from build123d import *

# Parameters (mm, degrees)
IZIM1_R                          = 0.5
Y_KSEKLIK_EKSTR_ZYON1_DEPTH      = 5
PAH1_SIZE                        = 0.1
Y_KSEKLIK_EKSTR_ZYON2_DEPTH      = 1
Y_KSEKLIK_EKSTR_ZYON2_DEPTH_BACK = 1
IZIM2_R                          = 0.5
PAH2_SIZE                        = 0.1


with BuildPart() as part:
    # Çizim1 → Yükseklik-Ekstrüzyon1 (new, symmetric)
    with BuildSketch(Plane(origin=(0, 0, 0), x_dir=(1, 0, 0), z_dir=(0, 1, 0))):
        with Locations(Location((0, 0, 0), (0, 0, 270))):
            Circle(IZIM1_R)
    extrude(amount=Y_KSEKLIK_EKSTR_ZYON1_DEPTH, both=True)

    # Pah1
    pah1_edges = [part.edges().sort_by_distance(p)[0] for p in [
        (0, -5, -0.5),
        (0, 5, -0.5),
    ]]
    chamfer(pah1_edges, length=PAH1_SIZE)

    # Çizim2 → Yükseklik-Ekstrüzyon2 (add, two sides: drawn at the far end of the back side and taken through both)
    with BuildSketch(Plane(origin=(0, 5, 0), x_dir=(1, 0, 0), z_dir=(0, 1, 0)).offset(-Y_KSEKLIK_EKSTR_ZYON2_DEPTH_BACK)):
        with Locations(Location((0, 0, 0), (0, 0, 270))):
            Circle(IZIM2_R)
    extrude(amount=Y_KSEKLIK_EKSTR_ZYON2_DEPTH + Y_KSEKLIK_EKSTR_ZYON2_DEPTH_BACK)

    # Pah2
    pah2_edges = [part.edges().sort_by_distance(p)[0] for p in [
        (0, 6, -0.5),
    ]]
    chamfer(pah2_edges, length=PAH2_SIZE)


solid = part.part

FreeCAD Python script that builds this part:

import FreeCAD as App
import Part
import Sketcher

V = App.Vector


def edges_at(feature, points):
    """Names of the edges that pass closest to the given points."""
    edges = feature.Shape.Edges
    near = lambda p: min(range(len(edges)), key=lambda i: edges[i].distToShape(Part.Vertex(*p))[0])
    return sorted({f"Edge{near(p) + 1}" for p in points})

doc = App.newDocument("Part")
body = doc.addObject("PartDesign::Body", "Body")

sketch1 = doc.addObject("Sketcher::SketchObject", "Sketch")
body.addObject(sketch1)
sketch1.AttachmentSupport = (doc.XZ_Plane, [""])
sketch1.MapMode = "FlatFace"
sketch1.addGeometry(Part.Circle(V(0, 0, 0), V(0, 0, 1), 0.5), False)
sketch1.addConstraint(Sketcher.Constraint("Coincident", 0, 3, -1, 1))
sketch1.addConstraint(Sketcher.Constraint("Diameter", 0, 1.0))
pad1 = doc.addObject("PartDesign::Pad", "Pad")
body.addObject(pad1)
pad1.Profile = sketch1
pad1.Length = 10
pad1.Midplane = True
doc.recompute()

chamfer = doc.addObject("PartDesign::Chamfer", "Chamfer")
body.addObject(chamfer)
chamfer.Base = (pad1, edges_at(pad1, [(0, -5, -0.5), (0, 5, -0.5)]))
chamfer.Size = 0.1

sketch2 = doc.addObject("Sketcher::SketchObject", "Sketch001")
body.addObject(sketch2)
sketch2.AttachmentSupport = (doc.XZ_Plane, [""])
sketch2.MapMode = "FlatFace"
sketch2.AttachmentOffset = App.Placement(V(0, 0, -5), App.Rotation())
sketch2.addGeometry(Part.Circle(V(0, 0, 0), V(0, 0, 1), 0.5), False)
sketch2.addConstraint(Sketcher.Constraint("Coincident", 0, 3, -1, 1))
sketch2.addConstraint(Sketcher.Constraint("Diameter", 0, 1.0))
pad2 = doc.addObject("PartDesign::Pad", "Pad001")
body.addObject(pad2)
pad2.Profile = sketch2
pad2.Type = "TwoLengths"
pad2.Length = 1
pad2.Length2 = 1
pad2.Reversed = True
doc.recompute()

chamfer2 = doc.addObject("PartDesign::Chamfer", "Chamfer001")
body.addObject(chamfer2)
chamfer2.Base = (pad2, edges_at(pad2, [(0, 6, -0.5)]))
chamfer2.Size = 0.1

doc.recompute()
